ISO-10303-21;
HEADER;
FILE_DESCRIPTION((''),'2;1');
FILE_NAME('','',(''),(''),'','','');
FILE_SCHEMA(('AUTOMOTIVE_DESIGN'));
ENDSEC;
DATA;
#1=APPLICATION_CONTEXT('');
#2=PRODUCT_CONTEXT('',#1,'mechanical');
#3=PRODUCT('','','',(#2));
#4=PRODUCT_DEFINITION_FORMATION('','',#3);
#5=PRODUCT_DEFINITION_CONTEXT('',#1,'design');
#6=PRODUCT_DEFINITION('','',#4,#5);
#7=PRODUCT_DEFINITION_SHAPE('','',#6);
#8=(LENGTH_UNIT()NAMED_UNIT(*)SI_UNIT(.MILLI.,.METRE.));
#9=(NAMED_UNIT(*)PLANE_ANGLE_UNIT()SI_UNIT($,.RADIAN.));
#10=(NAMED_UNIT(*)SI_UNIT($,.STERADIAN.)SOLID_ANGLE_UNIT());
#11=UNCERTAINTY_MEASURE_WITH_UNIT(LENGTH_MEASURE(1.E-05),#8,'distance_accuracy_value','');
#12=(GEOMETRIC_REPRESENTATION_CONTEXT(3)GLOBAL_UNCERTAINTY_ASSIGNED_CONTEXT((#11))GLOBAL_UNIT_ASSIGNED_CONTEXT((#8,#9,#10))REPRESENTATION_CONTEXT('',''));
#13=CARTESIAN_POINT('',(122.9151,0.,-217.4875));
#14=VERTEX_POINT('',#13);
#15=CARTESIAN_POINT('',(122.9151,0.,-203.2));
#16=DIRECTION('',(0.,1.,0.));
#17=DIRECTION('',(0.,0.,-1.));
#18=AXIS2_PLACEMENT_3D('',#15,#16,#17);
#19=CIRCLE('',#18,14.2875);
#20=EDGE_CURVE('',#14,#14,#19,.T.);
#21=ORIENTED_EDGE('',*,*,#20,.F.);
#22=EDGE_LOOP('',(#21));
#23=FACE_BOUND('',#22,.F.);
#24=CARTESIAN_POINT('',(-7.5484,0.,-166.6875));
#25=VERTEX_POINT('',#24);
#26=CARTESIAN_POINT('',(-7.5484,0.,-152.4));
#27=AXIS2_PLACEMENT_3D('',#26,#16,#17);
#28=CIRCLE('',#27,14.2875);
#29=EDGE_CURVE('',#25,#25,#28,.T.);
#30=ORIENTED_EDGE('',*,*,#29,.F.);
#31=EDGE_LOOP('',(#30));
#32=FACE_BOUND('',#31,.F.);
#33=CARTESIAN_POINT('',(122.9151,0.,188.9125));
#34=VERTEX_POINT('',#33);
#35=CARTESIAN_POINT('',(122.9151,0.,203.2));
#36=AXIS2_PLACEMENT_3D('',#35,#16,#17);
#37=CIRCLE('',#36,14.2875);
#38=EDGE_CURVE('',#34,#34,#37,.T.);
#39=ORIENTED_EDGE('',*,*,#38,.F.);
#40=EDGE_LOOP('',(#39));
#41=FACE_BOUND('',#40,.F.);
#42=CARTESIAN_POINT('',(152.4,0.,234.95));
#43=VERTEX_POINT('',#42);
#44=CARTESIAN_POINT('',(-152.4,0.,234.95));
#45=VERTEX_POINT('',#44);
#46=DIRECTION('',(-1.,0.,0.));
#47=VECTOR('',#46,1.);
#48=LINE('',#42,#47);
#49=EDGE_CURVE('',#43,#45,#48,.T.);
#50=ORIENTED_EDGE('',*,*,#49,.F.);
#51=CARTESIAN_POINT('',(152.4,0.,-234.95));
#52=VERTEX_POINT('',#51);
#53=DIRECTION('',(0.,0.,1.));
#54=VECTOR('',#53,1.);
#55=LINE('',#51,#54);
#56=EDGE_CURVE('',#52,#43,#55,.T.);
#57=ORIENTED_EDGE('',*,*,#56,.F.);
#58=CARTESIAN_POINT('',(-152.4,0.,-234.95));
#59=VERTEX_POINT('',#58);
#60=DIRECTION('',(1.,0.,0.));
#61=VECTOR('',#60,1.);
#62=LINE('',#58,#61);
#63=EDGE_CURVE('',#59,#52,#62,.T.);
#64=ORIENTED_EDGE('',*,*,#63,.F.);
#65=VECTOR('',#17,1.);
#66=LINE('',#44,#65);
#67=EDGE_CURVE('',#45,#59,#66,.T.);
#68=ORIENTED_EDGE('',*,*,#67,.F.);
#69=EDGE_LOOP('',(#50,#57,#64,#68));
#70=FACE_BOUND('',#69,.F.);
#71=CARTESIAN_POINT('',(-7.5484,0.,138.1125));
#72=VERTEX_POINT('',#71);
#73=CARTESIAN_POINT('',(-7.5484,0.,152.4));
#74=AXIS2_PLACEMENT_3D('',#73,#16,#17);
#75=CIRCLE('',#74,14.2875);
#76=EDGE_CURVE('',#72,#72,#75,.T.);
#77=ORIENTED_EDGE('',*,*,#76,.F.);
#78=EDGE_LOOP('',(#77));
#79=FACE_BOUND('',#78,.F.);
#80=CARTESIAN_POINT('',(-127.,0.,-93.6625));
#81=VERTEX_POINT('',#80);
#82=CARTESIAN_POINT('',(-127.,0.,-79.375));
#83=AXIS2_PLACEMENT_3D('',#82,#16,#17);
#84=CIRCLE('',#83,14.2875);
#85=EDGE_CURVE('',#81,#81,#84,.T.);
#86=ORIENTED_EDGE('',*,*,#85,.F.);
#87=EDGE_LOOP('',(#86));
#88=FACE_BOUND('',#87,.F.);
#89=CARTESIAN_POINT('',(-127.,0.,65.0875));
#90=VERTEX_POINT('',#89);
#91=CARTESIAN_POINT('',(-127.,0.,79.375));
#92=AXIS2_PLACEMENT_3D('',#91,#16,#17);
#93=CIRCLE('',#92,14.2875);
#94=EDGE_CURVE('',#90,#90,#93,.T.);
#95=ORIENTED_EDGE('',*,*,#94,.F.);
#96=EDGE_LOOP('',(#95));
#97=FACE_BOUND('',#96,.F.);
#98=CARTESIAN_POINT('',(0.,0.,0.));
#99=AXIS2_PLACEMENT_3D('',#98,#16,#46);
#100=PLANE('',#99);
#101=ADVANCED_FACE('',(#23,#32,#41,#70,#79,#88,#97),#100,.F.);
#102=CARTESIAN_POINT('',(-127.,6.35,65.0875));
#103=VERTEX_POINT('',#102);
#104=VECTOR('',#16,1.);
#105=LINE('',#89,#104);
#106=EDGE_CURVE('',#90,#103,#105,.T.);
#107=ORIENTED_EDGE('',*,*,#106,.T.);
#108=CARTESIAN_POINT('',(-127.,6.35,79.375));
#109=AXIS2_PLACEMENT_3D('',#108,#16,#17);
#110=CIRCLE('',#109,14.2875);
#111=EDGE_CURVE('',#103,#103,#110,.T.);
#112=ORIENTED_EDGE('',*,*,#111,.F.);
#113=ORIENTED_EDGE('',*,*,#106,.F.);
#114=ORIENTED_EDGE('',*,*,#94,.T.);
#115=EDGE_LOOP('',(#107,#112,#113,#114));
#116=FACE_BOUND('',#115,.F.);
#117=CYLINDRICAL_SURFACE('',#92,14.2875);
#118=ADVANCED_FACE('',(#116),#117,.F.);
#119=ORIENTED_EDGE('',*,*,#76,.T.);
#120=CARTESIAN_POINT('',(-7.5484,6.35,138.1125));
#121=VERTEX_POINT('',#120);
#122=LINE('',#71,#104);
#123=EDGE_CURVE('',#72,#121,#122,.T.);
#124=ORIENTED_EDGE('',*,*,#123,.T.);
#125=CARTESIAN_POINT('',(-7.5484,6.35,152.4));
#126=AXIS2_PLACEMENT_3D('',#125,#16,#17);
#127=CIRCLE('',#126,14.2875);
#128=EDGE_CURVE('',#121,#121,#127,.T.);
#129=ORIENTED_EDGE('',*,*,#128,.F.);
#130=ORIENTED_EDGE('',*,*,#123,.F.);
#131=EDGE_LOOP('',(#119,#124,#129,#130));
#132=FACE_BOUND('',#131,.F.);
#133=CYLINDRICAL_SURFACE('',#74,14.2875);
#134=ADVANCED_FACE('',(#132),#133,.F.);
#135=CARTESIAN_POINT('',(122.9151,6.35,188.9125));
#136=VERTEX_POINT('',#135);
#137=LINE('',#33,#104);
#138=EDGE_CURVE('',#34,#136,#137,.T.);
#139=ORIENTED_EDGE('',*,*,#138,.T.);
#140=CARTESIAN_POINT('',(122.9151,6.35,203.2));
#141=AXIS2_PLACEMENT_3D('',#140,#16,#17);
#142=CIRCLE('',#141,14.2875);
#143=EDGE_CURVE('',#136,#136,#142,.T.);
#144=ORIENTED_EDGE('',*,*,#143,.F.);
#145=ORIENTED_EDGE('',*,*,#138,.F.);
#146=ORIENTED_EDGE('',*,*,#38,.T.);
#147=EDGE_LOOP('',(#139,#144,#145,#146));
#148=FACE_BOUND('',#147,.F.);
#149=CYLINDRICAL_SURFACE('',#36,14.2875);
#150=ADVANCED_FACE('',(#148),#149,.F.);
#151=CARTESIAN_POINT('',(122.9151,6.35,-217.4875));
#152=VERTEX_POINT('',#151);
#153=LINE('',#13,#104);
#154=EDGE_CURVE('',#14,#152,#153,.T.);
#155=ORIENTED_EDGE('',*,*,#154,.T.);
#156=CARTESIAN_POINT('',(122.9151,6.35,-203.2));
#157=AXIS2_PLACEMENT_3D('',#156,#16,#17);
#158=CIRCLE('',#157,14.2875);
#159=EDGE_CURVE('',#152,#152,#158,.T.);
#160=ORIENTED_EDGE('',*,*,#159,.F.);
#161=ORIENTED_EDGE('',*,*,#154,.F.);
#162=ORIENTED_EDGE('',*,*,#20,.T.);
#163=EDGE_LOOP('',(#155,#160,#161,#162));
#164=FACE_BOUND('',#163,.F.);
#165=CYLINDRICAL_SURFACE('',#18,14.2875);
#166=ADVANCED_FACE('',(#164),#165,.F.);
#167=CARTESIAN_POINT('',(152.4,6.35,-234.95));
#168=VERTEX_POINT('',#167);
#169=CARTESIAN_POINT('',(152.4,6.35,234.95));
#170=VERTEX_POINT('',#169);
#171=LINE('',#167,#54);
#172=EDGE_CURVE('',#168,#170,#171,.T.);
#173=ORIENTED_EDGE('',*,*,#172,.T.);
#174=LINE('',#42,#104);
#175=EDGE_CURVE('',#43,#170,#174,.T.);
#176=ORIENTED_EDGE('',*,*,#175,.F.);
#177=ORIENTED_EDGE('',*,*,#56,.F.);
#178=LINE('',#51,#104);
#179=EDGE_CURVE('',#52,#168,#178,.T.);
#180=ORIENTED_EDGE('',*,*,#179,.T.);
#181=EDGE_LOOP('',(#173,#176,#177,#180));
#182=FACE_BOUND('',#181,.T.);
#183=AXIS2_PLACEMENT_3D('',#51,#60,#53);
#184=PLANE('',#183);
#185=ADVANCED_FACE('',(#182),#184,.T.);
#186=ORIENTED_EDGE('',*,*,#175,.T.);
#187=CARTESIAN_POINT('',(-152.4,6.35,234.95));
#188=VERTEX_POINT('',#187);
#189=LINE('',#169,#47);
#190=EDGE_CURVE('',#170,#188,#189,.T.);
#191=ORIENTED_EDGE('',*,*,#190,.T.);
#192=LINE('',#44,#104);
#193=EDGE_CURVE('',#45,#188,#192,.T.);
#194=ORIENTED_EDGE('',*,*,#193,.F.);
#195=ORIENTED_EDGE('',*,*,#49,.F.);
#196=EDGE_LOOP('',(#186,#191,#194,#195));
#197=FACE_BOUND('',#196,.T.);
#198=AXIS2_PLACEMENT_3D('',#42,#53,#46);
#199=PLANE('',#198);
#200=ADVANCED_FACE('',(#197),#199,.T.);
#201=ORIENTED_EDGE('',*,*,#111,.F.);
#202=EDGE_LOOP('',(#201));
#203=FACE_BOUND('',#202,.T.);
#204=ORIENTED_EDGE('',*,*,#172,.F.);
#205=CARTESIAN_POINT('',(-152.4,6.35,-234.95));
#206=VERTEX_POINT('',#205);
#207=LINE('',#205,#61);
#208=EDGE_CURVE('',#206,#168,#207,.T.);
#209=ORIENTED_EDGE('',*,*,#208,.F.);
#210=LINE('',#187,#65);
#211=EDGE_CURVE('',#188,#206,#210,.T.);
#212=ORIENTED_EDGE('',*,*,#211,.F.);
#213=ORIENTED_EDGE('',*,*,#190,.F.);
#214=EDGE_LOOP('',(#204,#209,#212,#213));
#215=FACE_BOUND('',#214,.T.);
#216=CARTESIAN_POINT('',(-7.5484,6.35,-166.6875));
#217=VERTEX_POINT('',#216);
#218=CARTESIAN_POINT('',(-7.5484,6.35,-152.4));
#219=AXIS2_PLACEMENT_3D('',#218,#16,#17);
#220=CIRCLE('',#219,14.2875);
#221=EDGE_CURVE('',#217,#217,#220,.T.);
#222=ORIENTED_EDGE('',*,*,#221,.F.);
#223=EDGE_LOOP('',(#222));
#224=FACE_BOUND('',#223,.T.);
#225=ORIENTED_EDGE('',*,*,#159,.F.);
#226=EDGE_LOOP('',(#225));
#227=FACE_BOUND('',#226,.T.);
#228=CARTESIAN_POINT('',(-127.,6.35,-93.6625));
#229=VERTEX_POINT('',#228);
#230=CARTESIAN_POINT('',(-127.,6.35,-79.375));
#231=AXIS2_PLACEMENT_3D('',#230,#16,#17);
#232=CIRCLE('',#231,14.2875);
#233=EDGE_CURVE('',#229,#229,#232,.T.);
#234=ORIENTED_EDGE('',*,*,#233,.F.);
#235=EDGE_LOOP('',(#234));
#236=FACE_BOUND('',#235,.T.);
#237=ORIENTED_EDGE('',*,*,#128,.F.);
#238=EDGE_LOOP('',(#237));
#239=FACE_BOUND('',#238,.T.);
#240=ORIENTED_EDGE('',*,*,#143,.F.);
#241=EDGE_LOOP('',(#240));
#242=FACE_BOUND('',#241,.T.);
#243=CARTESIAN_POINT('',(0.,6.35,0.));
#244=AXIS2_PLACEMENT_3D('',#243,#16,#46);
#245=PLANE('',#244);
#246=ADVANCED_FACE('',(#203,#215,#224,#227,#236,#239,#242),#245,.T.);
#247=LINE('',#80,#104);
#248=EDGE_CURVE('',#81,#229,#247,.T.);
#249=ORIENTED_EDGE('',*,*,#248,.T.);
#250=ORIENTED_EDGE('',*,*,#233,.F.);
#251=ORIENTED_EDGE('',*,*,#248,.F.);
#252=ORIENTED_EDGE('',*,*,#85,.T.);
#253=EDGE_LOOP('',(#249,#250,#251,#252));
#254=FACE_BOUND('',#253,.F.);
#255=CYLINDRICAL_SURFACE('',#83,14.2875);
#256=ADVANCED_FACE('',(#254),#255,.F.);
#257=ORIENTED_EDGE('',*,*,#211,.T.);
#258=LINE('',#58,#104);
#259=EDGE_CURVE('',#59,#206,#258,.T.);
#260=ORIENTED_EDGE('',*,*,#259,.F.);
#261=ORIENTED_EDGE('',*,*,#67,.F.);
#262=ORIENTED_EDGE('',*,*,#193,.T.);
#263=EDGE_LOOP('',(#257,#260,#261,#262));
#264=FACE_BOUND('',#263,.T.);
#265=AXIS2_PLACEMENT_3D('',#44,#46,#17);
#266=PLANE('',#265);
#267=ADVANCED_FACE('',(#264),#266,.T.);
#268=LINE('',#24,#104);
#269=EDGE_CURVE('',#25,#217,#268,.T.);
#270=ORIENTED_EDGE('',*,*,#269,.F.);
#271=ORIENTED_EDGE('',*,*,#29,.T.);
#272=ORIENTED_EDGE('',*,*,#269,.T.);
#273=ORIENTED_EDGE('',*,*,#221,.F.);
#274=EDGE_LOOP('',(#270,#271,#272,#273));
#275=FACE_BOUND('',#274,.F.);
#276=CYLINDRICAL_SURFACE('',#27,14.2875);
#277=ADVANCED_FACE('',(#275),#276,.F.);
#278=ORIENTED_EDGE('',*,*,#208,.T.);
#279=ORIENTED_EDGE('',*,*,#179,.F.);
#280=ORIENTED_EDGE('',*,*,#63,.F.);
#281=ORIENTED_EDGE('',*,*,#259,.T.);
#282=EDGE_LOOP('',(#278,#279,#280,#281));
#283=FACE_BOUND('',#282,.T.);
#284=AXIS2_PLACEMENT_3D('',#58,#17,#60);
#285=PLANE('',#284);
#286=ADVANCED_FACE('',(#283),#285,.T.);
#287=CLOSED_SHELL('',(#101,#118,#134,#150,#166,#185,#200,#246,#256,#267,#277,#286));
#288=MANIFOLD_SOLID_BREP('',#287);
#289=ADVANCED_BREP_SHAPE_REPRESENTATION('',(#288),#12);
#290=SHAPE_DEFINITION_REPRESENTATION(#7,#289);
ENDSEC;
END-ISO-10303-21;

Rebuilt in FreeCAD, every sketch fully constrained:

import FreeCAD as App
import Part
import Sketcher
from FreeCAD import Vector
Q = App.Units.Quantity

doc = App.newDocument("Part")
params = doc.addObject("Spreadsheet::Sheet", "Params")
for row, (alias, value) in enumerate([
    ("sketch1_width", "12 in"),
    ("sketch1_height", "18.5 in"),
    ("pad1_length", "0.25 in"),
    ("sketch2_diameter", "1.125 in"),
    ("hole_diameter", "1.125 in"),
], start=1):
    params.set(f"A{row}", alias)
    params.set(f"B{row}", "=" + value)
    params.setAlias(f"B{row}", alias)

body = doc.addObject("PartDesign::Body", "Body")

# Sketch on XZ plane
sketch1 = doc.addObject("Sketcher::SketchObject", "Sketch")
body.addObject(sketch1)
sketch1.AttachmentSupport = (doc.XZ_Plane, [""])
sketch1.MapMode = "FlatFace"
sketch1.addGeometry([
    Part.LineSegment(Vector(-152.4, 234.95, 0), Vector(152.4, 234.95, 0)),
    Part.LineSegment(Vector(152.4, 234.95, 0), Vector(152.4, -234.95, 0)),
    Part.LineSegment(Vector(152.4, -234.95, 0), Vector(-152.4, -234.95, 0)),
    Part.LineSegment(Vector(-152.4, -234.95, 0), Vector(-152.4, 234.95, 0)),
], False)
sketch1.addConstraint([
    Sketcher.Constraint("Coincident", 0, 2, 1, 1),
    Sketcher.Constraint("Coincident", 1, 2, 2, 1),
    Sketcher.Constraint("Coincident", 2, 2, 3, 1),
    Sketcher.Constraint("Coincident", 3, 2, 0, 1),
    Sketcher.Constraint("Horizontal", 0),
    Sketcher.Constraint("Vertical", 1),
    Sketcher.Constraint("Horizontal", 2),
    Sketcher.Constraint("Vertical", 3),
    Sketcher.Constraint("Symmetric", 0, 2, 2, 2, -1, 1),
    Sketcher.Constraint("DistanceX", 0, 1, 0, 2, Q("12 in")),
    Sketcher.Constraint("DistanceY", 1, 2, 1, 1, Q("18.5 in")),
])
sketch1.setExpression("Constraints[9]", "Params.sketch1_width")
sketch1.setExpression("Constraints[10]", "Params.sketch1_height")
pad1 = doc.addObject("PartDesign::Pad", "Pad")
body.addObject(pad1)
pad1.Profile = sketch1
pad1.setExpression("Length", "Params.pad1_length")
pad1.Reversed = True

# Sketch on XZ plane
sketch2 = doc.addObject("Sketcher::SketchObject", "Sketch001")
body.addObject(sketch2)
sketch2.AttachmentSupport = (doc.XZ_Plane, [""])
sketch2.MapMode = "FlatFace"
sketch2.addGeometry([
    Part.Circle(Vector(-127, 79.375, 0), Vector(0, 0, 1), 14.2875),  # 0
    Part.Circle(Vector(-127, -79.375, 0), Vector(0, 0, 1), 14.2875),  # 1
    Part.Circle(Vector(-7.5484, 152.4, 0), Vector(0, 0, 1), 14.2875),  # 2
    Part.Circle(Vector(122.9151, 203.2, 0), Vector(0, 0, 1), 14.2875),  # 3
    Part.Circle(Vector(-7.5484, -152.4, 0), Vector(0, 0, 1), 14.2875),  # 4
    Part.Circle(Vector(122.9151, -203.2, 0), Vector(0, 0, 1), 14.2875),  # 5
], False)
sketch2.addConstraint([
    Sketcher.Constraint("Equal", 0, 1),
    Sketcher.Constraint("Equal", 1, 2),
    Sketcher.Constraint("Equal", 2, 3),
    Sketcher.Constraint("Equal", 3, 4),
    Sketcher.Constraint("Equal", 4, 5),
    Sketcher.Constraint("Symmetric", 0, 3, 1, 3, -1),
    Sketcher.Constraint("Symmetric", 2, 3, 4, 3, -1),
    Sketcher.Constraint("Symmetric", 3, 3, 5, 3, -1),
    Sketcher.Constraint("Diameter", 0, Q("1.125 in")),
    Sketcher.Constraint("DistanceX", 0, 3, -1, 1, Q("5 in")),
    Sketcher.Constraint("DistanceY", -1, 1, 2, 3, Q("6 in")),
    Sketcher.Constraint("DistanceY", -1, 1, 3, 3, Q("8 in")),
    Sketcher.Constraint("DistanceY", 1, 3, 0, 3, Q("6.25 in")),
    Sketcher.Constraint("DistanceX", 2, 3, -1, 1, 7.5484),
    Sketcher.Constraint("DistanceX", -1, 1, 3, 3, 122.915),
])
sketch2.setExpression("Constraints[8]", "Params.sketch2_diameter")
doc.recompute()
hole = doc.addObject("PartDesign::Hole", "Hole")
body.addObject(hole)
hole.Profile = sketch2
hole.ThreadType = "None"
hole.setExpression("Diameter", "Params.hole_diameter")
hole.DepthType = "ThroughAll"

doc.recompute()
